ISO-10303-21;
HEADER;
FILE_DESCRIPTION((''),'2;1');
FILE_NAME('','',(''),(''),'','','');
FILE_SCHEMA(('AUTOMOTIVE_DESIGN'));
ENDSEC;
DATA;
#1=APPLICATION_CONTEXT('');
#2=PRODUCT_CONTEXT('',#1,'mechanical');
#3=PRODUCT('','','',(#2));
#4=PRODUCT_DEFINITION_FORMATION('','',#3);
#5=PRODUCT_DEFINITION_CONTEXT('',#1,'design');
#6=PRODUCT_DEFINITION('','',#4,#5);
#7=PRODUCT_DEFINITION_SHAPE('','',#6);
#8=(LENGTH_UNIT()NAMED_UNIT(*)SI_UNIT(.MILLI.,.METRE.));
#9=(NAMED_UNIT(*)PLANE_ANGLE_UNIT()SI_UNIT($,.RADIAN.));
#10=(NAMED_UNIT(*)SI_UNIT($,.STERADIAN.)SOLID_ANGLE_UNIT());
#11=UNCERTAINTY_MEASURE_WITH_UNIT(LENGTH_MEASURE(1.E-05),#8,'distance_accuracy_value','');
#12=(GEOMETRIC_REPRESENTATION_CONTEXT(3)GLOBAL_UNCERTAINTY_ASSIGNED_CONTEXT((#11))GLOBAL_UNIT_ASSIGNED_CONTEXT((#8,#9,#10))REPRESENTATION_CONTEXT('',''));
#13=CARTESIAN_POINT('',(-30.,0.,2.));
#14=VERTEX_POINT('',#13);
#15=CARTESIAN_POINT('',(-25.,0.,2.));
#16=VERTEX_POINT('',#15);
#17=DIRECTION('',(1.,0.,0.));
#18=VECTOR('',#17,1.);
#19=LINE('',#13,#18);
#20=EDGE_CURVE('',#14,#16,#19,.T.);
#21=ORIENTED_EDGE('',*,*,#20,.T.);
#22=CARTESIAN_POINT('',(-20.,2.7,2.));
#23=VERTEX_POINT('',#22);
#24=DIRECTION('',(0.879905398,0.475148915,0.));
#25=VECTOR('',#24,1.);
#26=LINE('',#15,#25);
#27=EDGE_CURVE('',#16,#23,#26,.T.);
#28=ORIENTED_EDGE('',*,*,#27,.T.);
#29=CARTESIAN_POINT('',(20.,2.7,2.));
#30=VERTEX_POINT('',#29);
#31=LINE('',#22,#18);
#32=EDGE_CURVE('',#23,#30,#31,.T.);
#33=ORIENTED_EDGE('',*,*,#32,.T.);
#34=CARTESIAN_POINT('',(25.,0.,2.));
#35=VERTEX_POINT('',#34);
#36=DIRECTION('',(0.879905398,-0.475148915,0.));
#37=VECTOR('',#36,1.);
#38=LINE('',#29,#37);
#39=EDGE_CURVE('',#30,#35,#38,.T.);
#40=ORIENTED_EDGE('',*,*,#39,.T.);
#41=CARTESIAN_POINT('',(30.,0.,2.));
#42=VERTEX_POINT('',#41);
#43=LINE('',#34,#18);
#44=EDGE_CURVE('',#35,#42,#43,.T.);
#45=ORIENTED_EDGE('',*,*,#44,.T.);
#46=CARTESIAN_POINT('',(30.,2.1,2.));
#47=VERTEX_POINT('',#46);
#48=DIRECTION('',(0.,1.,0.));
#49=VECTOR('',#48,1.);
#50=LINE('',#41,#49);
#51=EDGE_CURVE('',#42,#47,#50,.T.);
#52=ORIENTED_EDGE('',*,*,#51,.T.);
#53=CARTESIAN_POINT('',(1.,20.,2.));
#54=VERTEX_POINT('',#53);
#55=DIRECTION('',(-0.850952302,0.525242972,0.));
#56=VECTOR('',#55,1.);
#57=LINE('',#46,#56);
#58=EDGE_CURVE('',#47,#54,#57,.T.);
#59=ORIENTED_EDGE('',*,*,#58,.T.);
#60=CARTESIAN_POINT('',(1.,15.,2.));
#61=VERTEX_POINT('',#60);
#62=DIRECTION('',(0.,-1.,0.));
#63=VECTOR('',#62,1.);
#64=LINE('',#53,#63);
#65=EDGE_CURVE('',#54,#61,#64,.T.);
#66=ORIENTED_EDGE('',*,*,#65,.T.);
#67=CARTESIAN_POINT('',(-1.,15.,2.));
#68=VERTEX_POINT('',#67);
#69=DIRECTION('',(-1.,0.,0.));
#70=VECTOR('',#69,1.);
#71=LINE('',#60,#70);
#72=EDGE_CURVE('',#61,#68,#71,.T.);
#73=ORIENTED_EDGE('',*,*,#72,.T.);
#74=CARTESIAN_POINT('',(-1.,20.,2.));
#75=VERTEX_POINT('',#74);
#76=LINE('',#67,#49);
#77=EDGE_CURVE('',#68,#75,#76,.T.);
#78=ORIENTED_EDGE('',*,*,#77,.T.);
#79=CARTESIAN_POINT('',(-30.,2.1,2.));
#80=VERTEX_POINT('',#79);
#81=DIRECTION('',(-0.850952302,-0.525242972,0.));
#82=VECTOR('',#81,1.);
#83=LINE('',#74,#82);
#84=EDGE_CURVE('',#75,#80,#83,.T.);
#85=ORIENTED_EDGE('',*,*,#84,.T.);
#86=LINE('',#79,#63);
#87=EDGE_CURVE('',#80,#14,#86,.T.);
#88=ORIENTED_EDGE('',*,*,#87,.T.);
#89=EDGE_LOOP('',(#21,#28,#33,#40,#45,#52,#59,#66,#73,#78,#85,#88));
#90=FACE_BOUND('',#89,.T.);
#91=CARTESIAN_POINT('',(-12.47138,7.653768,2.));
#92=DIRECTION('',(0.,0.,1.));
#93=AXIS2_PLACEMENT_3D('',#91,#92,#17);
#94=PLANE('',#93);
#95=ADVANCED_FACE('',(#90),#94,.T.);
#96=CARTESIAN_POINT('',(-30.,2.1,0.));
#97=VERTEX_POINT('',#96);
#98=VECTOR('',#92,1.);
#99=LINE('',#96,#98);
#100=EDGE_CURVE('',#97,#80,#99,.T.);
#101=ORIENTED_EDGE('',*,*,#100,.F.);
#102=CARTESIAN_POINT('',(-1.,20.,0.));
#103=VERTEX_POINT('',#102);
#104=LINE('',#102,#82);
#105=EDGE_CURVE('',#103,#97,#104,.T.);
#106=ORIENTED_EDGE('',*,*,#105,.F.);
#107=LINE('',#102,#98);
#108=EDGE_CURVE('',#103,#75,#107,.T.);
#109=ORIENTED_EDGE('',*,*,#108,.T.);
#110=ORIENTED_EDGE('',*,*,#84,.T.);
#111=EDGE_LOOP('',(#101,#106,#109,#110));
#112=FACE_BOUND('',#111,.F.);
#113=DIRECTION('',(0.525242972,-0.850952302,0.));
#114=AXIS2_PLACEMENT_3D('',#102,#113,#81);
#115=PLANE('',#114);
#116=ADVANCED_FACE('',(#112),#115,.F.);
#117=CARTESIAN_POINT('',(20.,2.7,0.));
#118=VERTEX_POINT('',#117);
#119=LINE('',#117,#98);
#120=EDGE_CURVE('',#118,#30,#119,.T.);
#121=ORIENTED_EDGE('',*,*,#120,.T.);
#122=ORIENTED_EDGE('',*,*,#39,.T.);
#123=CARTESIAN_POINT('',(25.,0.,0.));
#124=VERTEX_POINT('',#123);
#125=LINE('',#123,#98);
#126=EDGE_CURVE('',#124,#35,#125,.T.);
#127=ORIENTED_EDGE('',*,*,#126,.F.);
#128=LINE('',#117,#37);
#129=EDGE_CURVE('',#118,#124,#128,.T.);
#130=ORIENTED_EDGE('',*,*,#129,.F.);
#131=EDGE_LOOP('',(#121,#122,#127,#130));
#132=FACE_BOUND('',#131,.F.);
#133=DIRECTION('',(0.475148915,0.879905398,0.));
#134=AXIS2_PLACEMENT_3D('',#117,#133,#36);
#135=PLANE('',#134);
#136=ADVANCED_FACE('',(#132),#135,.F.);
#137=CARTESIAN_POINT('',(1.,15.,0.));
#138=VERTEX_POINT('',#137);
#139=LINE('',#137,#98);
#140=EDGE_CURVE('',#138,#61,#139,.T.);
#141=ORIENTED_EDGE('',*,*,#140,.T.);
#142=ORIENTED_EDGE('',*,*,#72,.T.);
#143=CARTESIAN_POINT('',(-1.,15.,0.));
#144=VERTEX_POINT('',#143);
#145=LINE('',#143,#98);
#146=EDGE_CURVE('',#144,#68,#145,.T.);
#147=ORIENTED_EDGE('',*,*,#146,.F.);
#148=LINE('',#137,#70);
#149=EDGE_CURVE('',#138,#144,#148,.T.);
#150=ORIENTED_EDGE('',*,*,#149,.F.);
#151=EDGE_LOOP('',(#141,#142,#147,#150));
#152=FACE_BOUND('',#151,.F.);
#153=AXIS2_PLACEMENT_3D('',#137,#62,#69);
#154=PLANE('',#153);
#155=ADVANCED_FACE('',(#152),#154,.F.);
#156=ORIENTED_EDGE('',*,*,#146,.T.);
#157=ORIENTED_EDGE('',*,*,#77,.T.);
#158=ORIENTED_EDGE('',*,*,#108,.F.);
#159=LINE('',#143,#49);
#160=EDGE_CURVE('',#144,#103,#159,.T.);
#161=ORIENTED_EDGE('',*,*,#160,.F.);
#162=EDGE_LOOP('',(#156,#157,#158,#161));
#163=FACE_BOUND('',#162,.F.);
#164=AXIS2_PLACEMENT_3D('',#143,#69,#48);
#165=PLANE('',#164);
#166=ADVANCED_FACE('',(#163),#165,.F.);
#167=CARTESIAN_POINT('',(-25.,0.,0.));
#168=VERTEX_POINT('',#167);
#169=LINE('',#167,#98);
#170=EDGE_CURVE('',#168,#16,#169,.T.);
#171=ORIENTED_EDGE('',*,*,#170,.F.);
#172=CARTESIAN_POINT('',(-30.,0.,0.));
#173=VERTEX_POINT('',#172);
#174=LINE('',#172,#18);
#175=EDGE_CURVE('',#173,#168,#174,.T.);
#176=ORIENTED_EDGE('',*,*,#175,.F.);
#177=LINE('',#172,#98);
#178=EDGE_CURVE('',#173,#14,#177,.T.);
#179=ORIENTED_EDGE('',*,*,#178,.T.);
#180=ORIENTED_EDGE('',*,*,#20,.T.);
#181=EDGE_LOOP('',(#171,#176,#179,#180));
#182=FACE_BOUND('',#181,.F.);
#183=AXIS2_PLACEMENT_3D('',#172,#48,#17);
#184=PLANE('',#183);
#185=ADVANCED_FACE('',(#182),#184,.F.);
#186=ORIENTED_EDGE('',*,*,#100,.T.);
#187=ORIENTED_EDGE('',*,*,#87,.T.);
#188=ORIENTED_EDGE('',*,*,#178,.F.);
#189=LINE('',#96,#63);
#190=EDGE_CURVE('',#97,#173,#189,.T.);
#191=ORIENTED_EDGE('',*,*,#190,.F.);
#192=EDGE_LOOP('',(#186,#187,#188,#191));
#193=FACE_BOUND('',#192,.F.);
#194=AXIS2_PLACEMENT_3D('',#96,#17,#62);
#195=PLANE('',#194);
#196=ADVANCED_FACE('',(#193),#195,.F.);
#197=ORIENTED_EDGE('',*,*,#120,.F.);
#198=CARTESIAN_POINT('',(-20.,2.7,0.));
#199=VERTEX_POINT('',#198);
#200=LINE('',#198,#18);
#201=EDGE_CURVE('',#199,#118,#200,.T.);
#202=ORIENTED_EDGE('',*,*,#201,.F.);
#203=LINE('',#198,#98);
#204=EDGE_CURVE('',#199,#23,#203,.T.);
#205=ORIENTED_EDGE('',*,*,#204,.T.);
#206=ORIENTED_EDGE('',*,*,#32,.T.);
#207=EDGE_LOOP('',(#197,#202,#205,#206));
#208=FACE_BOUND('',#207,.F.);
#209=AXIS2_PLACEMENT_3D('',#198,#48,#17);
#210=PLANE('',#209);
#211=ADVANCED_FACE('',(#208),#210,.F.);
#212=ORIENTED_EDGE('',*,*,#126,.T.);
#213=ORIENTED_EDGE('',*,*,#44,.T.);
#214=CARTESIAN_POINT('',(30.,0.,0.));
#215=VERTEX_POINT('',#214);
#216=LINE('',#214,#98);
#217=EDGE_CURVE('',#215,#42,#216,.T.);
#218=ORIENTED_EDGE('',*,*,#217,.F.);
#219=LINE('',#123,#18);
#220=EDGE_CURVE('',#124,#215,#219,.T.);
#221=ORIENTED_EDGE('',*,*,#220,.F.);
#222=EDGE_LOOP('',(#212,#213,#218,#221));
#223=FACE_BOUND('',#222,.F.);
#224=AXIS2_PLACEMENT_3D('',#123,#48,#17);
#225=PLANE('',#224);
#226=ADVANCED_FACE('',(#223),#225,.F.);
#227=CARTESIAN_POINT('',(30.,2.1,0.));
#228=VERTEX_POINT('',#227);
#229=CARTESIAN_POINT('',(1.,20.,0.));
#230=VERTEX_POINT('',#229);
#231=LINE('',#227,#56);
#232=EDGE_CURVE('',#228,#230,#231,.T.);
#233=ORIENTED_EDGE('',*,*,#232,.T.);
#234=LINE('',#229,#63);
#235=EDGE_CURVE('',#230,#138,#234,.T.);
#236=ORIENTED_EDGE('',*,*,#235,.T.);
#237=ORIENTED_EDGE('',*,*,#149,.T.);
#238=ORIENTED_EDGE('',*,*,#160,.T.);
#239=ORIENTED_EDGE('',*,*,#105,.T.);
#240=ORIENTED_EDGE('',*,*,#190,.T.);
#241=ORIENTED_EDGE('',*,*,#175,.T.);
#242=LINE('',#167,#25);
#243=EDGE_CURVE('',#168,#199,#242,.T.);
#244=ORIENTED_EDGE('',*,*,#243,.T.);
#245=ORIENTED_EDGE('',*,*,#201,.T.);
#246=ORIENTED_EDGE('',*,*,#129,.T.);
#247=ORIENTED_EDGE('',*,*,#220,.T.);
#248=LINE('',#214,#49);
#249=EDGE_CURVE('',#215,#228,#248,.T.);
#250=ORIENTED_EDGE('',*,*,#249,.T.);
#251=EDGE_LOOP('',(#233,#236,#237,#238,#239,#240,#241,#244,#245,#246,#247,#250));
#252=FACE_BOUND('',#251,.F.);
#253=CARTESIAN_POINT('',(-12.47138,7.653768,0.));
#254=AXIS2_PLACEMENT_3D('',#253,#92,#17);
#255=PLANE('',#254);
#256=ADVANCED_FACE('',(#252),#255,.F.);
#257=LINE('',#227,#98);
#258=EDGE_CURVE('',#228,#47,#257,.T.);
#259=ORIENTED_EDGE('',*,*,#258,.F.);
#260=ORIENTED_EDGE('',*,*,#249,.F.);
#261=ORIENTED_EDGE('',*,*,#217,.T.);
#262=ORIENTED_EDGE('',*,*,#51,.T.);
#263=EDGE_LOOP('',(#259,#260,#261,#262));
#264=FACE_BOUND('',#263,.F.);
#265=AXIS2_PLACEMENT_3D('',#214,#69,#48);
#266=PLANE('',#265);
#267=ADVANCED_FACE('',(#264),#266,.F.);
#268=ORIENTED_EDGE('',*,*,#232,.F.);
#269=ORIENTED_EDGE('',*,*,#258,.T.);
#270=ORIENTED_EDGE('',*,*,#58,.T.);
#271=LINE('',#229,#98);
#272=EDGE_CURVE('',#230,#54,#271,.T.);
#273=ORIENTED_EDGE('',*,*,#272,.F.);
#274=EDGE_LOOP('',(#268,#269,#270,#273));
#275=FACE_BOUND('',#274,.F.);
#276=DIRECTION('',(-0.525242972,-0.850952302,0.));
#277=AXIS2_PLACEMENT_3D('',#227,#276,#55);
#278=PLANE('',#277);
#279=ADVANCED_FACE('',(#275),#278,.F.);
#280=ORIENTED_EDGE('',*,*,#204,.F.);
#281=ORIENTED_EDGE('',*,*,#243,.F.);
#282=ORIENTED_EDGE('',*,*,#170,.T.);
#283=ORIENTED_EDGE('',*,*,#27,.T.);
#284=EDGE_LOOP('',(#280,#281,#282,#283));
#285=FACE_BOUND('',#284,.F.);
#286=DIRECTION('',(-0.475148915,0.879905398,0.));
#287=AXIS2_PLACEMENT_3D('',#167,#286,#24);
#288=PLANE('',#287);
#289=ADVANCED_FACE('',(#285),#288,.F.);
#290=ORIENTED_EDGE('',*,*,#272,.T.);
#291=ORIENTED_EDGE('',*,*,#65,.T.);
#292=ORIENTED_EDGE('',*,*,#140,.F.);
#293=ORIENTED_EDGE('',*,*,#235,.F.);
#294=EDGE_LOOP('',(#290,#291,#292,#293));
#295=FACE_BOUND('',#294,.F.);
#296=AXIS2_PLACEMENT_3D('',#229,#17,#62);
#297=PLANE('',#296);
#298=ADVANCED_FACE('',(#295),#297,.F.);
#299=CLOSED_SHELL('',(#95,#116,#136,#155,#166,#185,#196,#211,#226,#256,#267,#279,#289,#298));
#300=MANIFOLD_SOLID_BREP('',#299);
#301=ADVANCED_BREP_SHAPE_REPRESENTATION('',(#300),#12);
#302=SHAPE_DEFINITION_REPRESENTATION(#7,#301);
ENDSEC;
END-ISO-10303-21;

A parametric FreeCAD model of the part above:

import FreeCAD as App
import Part
import Sketcher
from FreeCAD import Vector
Q = App.Units.Quantity

doc = App.newDocument("Part")
body = doc.addObject("PartDesign::Body", "Body")

sketch1 = doc.addObject("Sketcher::SketchObject", "Sketch")
body.addObject(sketch1)
sketch1.AttachmentSupport = (doc.XY_Plane, [""])
sketch1.MapMode = "FlatFace"
sketch1.addGeometry([
    Part.LineSegment(Vector(-30, 0, 0), Vector(-25, 0, 0)),
    Part.LineSegment(Vector(-25, 0, 0), Vector(-20, 2.7, 0)),
    Part.LineSegment(Vector(-20, 2.7, 0), Vector(20, 2.7, 0)),
    Part.LineSegment(Vector(20, 2.7, 0), Vector(25, 0, 0)),
    Part.LineSegment(Vector(25, 0, 0), Vector(30, 0, 0)),
    Part.LineSegment(Vector(30, 0, 0), Vector(30, 2.1, 0)),
    Part.LineSegment(Vector(30, 2.1, 0), Vector(1, 20, 0)),
    Part.LineSegment(Vector(1, 20, 0), Vector(1, 15, 0)),
    Part.LineSegment(Vector(1, 15, 0), Vector(-1, 15, 0)),
    Part.LineSegment(Vector(-1, 15, 0), Vector(-1, 20, 0)),
    Part.LineSegment(Vector(-1, 20, 0), Vector(-30, 2.1, 0)),
    Part.LineSegment(Vector(-30, 2.1, 0), Vector(-30, 0, 0)),
], False)
sketch1.addConstraint([
    Sketcher.Constraint("Coincident", 0, 2, 1, 1),
    Sketcher.Constraint("Coincident", 1, 2, 2, 1),
    Sketcher.Constraint("Coincident", 2, 2, 3, 1),
    Sketcher.Constraint("Coincident", 3, 2, 4, 1),
    Sketcher.Constraint("Coincident", 4, 2, 5, 1),
    Sketcher.Constraint("Coincident", 5, 2, 6, 1),
    Sketcher.Constraint("Coincident", 6, 2, 7, 1),
    Sketcher.Constraint("Coincident", 7, 2, 8, 1),
    Sketcher.Constraint("Coincident", 8, 2, 9, 1),
    Sketcher.Constraint("Coincident", 9, 2, 10, 1),
    Sketcher.Constraint("Coincident", 10, 2, 11, 1),
    Sketcher.Constraint("Coincident", 11, 2, 0, 1),
    Sketcher.Constraint("Horizontal", 0),
    Sketcher.Constraint("Horizontal", 2),
    Sketcher.Constraint("Horizontal", 4),
    Sketcher.Constraint("Vertical", 5),
    Sketcher.Constraint("Vertical", 7),
    Sketcher.Constraint("Horizontal", 8),
    Sketcher.Constraint("Vertical", 9),
    Sketcher.Constraint("Vertical", 11),
    Sketcher.Constraint("Symmetric", 0, 2, 3, 2, -1, 1),
    Sketcher.Constraint("Symmetric", 6, 2, 9, 2, -2),
    Sketcher.Constraint("Symmetric", 5, 2, 10, 2, -2),
    Sketcher.Constraint("PointOnObject", 0, 2, -1),
    Sketcher.Constraint("Equal", 4, 7),
    Sketcher.Constraint("Equal", 1, 3),
    Sketcher.Constraint("DistanceX", 0, 1, 0, 2, Q("5 mm")),
    Sketcher.Constraint("DistanceX", 2, 1, 2, 2, Q("40 mm")),
    Sketcher.Constraint("DistanceX", 8, 2, 8, 1, Q("2 mm")),
    Sketcher.Constraint("DistanceY", 5, 1, 5, 2, Q("2.1 mm")),
    Sketcher.Constraint("DistanceX", 0, 2, -1, 1, Q("25 mm")),
    Sketcher.Constraint("DistanceY", -1, 1, 6, 2, Q("20 mm")),
    Sketcher.Constraint("DistanceY", -1, 1, 1, 2, Q("2.7 mm")),
])
pad1 = doc.addObject("PartDesign::Pad", "Pad")
body.addObject(pad1)
pad1.Profile = sketch1
pad1.Length = 2

doc.recompute()
